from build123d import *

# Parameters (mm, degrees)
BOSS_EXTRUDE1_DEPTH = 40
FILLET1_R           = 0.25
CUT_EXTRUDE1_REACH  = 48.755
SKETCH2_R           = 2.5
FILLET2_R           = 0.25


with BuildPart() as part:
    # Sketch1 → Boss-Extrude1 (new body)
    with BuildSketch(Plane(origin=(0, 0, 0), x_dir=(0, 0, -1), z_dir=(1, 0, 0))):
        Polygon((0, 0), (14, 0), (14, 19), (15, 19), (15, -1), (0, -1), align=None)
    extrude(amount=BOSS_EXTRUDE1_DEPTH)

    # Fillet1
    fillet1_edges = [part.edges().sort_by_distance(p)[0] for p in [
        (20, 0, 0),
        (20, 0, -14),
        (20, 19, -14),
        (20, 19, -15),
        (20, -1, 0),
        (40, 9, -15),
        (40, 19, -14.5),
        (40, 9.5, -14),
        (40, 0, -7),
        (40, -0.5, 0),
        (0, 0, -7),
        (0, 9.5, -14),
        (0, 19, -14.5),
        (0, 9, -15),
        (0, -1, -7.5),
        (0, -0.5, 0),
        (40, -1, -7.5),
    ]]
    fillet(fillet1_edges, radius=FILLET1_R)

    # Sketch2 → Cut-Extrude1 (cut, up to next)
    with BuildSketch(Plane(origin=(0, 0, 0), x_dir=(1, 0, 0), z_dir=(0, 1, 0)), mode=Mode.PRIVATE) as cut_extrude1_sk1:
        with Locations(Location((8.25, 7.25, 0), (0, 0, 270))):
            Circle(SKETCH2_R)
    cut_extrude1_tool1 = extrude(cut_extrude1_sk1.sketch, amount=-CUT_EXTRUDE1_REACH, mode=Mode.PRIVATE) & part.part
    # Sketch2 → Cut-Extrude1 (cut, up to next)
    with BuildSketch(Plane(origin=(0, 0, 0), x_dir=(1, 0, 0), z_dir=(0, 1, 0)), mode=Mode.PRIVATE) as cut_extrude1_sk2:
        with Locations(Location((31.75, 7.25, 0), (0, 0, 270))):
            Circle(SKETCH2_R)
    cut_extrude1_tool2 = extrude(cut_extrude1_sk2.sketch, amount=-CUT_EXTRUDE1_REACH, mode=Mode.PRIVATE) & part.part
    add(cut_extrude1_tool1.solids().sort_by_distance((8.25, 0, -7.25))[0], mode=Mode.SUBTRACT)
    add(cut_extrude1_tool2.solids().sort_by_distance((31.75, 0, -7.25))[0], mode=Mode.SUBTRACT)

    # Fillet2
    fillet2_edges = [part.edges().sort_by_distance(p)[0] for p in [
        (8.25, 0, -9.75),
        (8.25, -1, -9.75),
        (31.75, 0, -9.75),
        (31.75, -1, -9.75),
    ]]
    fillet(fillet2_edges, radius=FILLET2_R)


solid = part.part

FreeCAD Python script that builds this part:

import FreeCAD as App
import Part
import Sketcher
from FreeCAD import Vector


def edges_at(feature, points):
    """Names of the edges that pass closest to the given points."""
    edges = feature.Shape.Edges
    near = lambda p: min(range(len(edges)), key=lambda i: edges[i].distToShape(Part.Vertex(*p))[0])
    return sorted({f"Edge{near(p) + 1}" for p in points})

doc = App.newDocument("Part")
body = doc.addObject("PartDesign::Body", "Body")

sketch1 = doc.addObject("Sketcher::SketchObject", "Sketch")
body.addObject(sketch1)
sketch1.AttachmentSupport = (doc.YZ_Plane, [""])
sketch1.MapMode = "FlatFace"
sketch1.addGeometry([
    Part.LineSegment(Vector(0, -14, 0), Vector(0, 0, 0)),
    Part.LineSegment(Vector(0, 0, 0), Vector(-1, 0, 0)),
    Part.LineSegment(Vector(-1, 0, 0), Vector(-1, -15, 0)),
    Part.LineSegment(Vector(-1, -15, 0), Vector(19, -15, 0)),
    Part.LineSegment(Vector(19, -15, 0), Vector(19, -14, 0)),
    Part.LineSegment(Vector(19, -14, 0), Vector(0, -14, 0)),
], False)
sketch1.addConstraint([
    Sketcher.Constraint("Coincident", 0, 2, 1, 1),
    Sketcher.Constraint("Coincident", 1, 2, 2, 1),
    Sketcher.Constraint("Coincident", 2, 2, 3, 1),
    Sketcher.Constraint("Coincident", 3, 2, 4, 1),
    Sketcher.Constraint("Coincident", 4, 2, 5, 1),
    Sketcher.Constraint("Coincident", 5, 2, 0, 1),
    Sketcher.Constraint("Vertical", 0),
    Sketcher.Constraint("Horizontal", 1),
    Sketcher.Constraint("Vertical", 2),
    Sketcher.Constraint("Horizontal", 3),
    Sketcher.Constraint("Vertical", 4),
    Sketcher.Constraint("Horizontal", 5),
    Sketcher.Constraint("Coincident", 0, 2, -1, 1),
    Sketcher.Constraint("Equal", 1, 4),
    Sketcher.Constraint("DistanceX", 1, 2, 1, 1, 1.0),
    Sketcher.Constraint("DistanceX", 3, 1, 3, 2, 20.0),
    Sketcher.Constraint("DistanceY", 0, 1, 0, 2, 14.0),
])
pad1 = doc.addObject("PartDesign::Pad", "Pad")
body.addObject(pad1)
pad1.Profile = sketch1
pad1.Length = 40
doc.recompute()

fillet = doc.addObject("PartDesign::Fillet", "Fillet")
body.addObject(fillet)
fillet.Base = (pad1, edges_at(pad1, [
    (20, 0, 0),
    (20, 0, -14),
    (20, 19, -14),
    (20, 19, -15),
    (20, -1, 0),
    (40, 9, -15),
    (40, 19, -14.5),
    (40, 9.5, -14),
    (40, 0, -7),
    (40, -0.5, 0),
    (0, 0, -7),
    (0, 9.5, -14),
    (0, 19, -14.5),
    (0, 9, -15),
    (0, -1, -7.5),
    (0, -0.5, 0),
    (40, -1, -7.5),
]))
fillet.Radius = 0.25

sketch2 = doc.addObject("Sketcher::SketchObject", "Sketch001")
body.addObject(sketch2)
sketch2.AttachmentSupport = (doc.XZ_Plane, [""])
sketch2.MapMode = "FlatFace"
sketch2.addGeometry(Part.Circle(Vector(8.2, -7.2, 0), Vector(0, 0, 1), 2.5), False)
sketch2.addConstraint([
    Sketcher.Constraint("Diameter", 0, 5.0),
    Sketcher.Constraint("DistanceX", -1, 1, 0, 3, 8.25),
    Sketcher.Constraint("DistanceY", 0, 3, -1, 1, 7.25),
])
pocket1 = doc.addObject("PartDesign::Pocket", "Pocket")
body.addObject(pocket1)
pocket1.Profile = sketch2
pocket1.Type = "UpToFirst"
pocket1.Reversed = True

sketch3 = doc.addObject("Sketcher::SketchObject", "Sketch002")
body.addObject(sketch3)
sketch3.AttachmentSupport = (doc.XZ_Plane, [""])
sketch3.MapMode = "FlatFace"
sketch3.addGeometry(Part.Circle(Vector(31.8, -7.2, 0), Vector(0, 0, 1), 2.5), False)
sketch3.addConstraint([
    Sketcher.Constraint("Diameter", 0, 5.0),
    Sketcher.Constraint("DistanceX", -1, 1, 0, 3, 31.75),
    Sketcher.Constraint("DistanceY", 0, 3, -1, 1, 7.25),
])
pocket2 = doc.addObject("PartDesign::Pocket", "Pocket001")
body.addObject(pocket2)
pocket2.Profile = sketch3
pocket2.Type = "UpToFirst"
pocket2.Reversed = True
doc.recompute()

fillet2 = doc.addObject("PartDesign::Fillet", "Fillet001")
body.addObject(fillet2)
fillet2.Base = (pocket2, edges_at(pocket2, [
    (8.25, 0, -9.75),
    (8.25, -1, -9.75),
    (31.75, 0, -9.75),
    (31.75, -1, -9.75),
]))
fillet2.Radius = 0.25

doc.recompute()
